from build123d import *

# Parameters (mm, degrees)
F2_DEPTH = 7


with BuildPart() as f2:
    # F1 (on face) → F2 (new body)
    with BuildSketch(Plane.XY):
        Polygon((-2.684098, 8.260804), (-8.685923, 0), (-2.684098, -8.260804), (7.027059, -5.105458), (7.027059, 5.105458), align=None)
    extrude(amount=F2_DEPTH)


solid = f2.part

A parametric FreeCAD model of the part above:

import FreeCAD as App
import Part
import Sketcher
Q = App.Units.Quantity

doc = App.newDocument("Part")
body = doc.addObject("PartDesign::Body", "Body")

sketch1 = body.newObject("Sketcher::SketchObject", "Sketch")
sketch1.AttachmentSupport = (doc.getObject("XY_Plane"), [""])
sketch1.MapMode = "FlatFace"
sketch1.addGeometry([
    Part.LineSegment(App.Vector(-2.684098, 8.260804, 0), App.Vector(-8.685923, 0, 0)),
    Part.LineSegment(App.Vector(-8.685923, 0, 0), App.Vector(-2.684098, -8.260804, 0)),
    Part.LineSegment(App.Vector(-2.684098, -8.260804, 0), App.Vector(7.027059, -5.105458, 0)),
    Part.LineSegment(App.Vector(7.027059, -5.105458, 0), App.Vector(7.027059, 5.105458, 0)),
    Part.LineSegment(App.Vector(7.027059, 5.105458, 0), App.Vector(-2.684098, 8.260804, 0)),
], False)
sketch1.addConstraint([
    Sketcher.Constraint("Coincident", 0, 2, 1, 1),
    Sketcher.Constraint("Coincident", 1, 2, 2, 1),
    Sketcher.Constraint("Coincident", 2, 2, 3, 1),
    Sketcher.Constraint("Coincident", 3, 2, 4, 1),
    Sketcher.Constraint("Coincident", 4, 2, 0, 1),
    Sketcher.Constraint("Vertical", 3),
    Sketcher.Constraint("Symmetric", 1, 2, 4, 2, -1),
    Sketcher.Constraint("PointOnObject", 0, 2, -1),
    Sketcher.Constraint("Equal", 1, 2),
    Sketcher.Constraint("Equal", 2, 4),
    Sketcher.Constraint("Angle", 0, Q("-125.999998 deg")),
    Sketcher.Constraint("Angle", 2, Q("17.999999 deg")),
    Sketcher.Constraint("DistanceX", 1, 2, -1, 1, 2.684098),
    Sketcher.Constraint("DistanceY", 3, 1, 3, 2, 10.210916),
])
pad1 = body.newObject("PartDesign::Pad", "Pad")
pad1.Profile = sketch1
pad1.Length = 7

doc.recompute()
